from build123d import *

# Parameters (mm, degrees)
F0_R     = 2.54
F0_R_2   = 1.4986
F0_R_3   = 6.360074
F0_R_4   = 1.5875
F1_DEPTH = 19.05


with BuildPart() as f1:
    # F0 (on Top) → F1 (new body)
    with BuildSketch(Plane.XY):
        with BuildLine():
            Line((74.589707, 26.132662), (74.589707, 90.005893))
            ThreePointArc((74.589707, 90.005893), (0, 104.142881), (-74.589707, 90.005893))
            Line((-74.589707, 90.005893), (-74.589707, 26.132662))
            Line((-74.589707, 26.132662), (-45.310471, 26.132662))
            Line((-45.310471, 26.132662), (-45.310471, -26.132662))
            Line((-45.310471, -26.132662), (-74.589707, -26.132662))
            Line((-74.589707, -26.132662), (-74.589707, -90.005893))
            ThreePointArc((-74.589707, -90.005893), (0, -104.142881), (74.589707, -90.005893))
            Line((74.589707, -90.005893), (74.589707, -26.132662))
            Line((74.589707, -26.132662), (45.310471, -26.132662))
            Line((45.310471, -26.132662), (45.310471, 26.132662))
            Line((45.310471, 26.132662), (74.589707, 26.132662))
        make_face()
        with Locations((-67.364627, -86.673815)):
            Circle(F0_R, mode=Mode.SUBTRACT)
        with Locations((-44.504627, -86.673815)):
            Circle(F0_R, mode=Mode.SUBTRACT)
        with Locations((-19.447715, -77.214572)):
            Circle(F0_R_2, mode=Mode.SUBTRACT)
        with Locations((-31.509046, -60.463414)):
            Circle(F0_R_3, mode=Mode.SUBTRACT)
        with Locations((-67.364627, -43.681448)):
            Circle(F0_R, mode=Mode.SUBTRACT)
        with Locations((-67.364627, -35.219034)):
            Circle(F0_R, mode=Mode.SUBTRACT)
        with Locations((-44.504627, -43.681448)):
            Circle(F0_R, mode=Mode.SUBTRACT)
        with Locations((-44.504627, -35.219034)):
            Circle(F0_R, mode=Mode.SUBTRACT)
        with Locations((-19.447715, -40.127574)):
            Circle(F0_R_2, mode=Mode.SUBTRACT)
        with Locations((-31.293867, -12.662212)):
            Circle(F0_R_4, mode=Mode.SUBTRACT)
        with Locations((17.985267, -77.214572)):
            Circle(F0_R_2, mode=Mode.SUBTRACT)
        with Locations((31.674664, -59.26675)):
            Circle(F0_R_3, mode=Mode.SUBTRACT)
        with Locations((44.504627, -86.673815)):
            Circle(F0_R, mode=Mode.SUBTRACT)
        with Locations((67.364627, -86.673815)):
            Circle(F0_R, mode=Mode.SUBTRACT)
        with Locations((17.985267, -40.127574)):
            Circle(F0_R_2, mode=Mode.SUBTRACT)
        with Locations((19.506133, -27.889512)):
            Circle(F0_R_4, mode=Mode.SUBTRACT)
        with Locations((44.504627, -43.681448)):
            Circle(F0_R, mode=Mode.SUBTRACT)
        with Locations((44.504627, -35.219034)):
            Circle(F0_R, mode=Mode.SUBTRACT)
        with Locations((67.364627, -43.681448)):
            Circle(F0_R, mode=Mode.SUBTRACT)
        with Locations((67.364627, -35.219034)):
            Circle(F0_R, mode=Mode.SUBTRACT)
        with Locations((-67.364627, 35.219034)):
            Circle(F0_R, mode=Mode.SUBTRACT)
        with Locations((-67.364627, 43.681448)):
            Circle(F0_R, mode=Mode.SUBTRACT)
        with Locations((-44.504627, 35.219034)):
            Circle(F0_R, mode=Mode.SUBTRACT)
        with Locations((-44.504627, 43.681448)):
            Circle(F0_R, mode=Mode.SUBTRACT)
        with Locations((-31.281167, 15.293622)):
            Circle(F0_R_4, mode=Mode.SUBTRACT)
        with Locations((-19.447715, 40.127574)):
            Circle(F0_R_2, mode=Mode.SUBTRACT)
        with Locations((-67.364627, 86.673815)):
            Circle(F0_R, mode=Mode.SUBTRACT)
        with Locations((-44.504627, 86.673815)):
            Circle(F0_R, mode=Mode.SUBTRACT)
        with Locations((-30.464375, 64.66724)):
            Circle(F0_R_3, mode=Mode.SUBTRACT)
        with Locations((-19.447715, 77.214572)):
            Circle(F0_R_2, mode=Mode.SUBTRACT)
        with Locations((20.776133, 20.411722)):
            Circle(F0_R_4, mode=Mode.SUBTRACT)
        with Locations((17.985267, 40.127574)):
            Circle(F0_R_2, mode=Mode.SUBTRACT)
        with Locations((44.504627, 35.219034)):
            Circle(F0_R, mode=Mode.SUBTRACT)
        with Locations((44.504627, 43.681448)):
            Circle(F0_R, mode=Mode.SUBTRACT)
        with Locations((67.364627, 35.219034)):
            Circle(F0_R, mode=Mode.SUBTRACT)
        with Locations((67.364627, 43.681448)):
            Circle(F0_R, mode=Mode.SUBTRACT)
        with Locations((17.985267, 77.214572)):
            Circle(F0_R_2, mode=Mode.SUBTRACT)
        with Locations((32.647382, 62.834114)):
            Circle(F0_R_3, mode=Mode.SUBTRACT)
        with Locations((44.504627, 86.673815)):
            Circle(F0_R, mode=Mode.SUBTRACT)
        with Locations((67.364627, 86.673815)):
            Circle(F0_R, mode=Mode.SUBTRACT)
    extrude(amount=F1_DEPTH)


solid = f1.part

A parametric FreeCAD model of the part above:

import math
import FreeCAD as App
import Part
import Sketcher
Q = App.Units.Quantity

doc = App.newDocument("Part")
params = doc.addObject("Spreadsheet::Sheet", "Params")
for row, (alias, value) in enumerate([
    ("sketch1_diameter", "0.2 in"),
    ("sketch1_diameter2", "0.118 in"),
    ("sketch1_diameter3", "0.125 in"),
    ("pad1_length", "0.75 in"),
], start=1):
    params.set(f"A{row}", alias)
    params.set(f"B{row}", "=" + value)
    params.setAlias(f"B{row}", alias)

body = doc.addObject("PartDesign::Body", "Body")

# Sketch on XY plane
sketch1 = body.newObject("Sketcher::SketchObject", "Sketch")
sketch1.AttachmentSupport = (doc.getObject("XY_Plane"), [""])
sketch1.MapMode = "FlatFace"
sketch1.addGeometry(Part.LineSegment(App.Vector(74.6, 26.1, 0), App.Vector(74.6, 90, 0)), False)
sketch1.addGeometry(Part.ArcOfCircle(Part.Circle(App.Vector(0, -99.7, 0), App.Vector(0, 0, 1), 203.8), math.radians(69), math.radians(111)), False)
sketch1.addGeometry(Part.LineSegment(App.Vector(-74.6, 90, 0), App.Vector(-74.6, 26.1, 0)), False)
sketch1.addGeometry(Part.LineSegment(App.Vector(-74.6, 26.1, 0), App.Vector(-45.3, 26.1, 0)), False)
sketch1.addGeometry(Part.LineSegment(App.Vector(-45.3, 26.1, 0), App.Vector(-45.3, -26.1, 0)), False)
sketch1.addGeometry(Part.LineSegment(App.Vector(-45.3, -26.1, 0), App.Vector(-74.6, -26.1, 0)), False)
sketch1.addGeometry(Part.LineSegment(App.Vector(-74.6, -26.1, 0), App.Vector(-74.6, -90, 0)), False)
sketch1.addGeometry(Part.ArcOfCircle(Part.Circle(App.Vector(0, 99.7, 0), App.Vector(0, 0, 1), 203.8), math.radians(-111), math.radians(-69)), False)
sketch1.addGeometry(Part.LineSegment(App.Vector(74.6, -90, 0), App.Vector(74.6, -26.1, 0)), False)
sketch1.addGeometry(Part.LineSegment(App.Vector(74.6, -26.1, 0), App.Vector(45.3, -26.1, 0)), False)
sketch1.addGeometry(Part.LineSegment(App.Vector(45.3, -26.1, 0), App.Vector(45.3, 26.1, 0)), False)
sketch1.addGeometry(Part.LineSegment(App.Vector(45.3, 26.1, 0), App.Vector(74.6, 26.1, 0)), False)
sketch1.addGeometry(Part.Circle(App.Vector(-67.4, -86.7, 0), App.Vector(0, 0, 1), 2.5), False)
sketch1.addGeometry(Part.Circle(App.Vector(-44.5, -86.7, 0), App.Vector(0, 0, 1), 2.5), False)
sketch1.addGeometry(Part.Circle(App.Vector(-19.4, -77.2, 0), App.Vector(0, 0, 1), 1.5), False)
sketch1.addGeometry(Part.Circle(App.Vector(-31.5, -60.5, 0), App.Vector(0, 0, 1), 6.4), False)
sketch1.addGeometry(Part.Circle(App.Vector(-67.4, -43.7, 0), App.Vector(0, 0, 1), 2.5), False)
sketch1.addGeometry(Part.Circle(App.Vector(-67.4, -35.2, 0), App.Vector(0, 0, 1), 2.5), False)
sketch1.addGeometry(Part.Circle(App.Vector(-44.5, -43.7, 0), App.Vector(0, 0, 1), 2.5), False)
sketch1.addGeometry(Part.Circle(App.Vector(-44.5, -35.2, 0), App.Vector(0, 0, 1), 2.5), False)
sketch1.addGeometry(Part.Circle(App.Vector(-19.4, -40.1, 0), App.Vector(0, 0, 1), 1.5), False)
sketch1.addGeometry(Part.Circle(App.Vector(-31.3, -12.7, 0), App.Vector(0, 0, 1), 1.6), False)
sketch1.addGeometry(Part.Circle(App.Vector(18, -77.2, 0), App.Vector(0, 0, 1), 1.5), False)
sketch1.addGeometry(Part.Circle(App.Vector(31.7, -59.3, 0), App.Vector(0, 0, 1), 6.4), False)
sketch1.addGeometry(Part.Circle(App.Vector(44.5, -86.7, 0), App.Vector(0, 0, 1), 2.5), False)
sketch1.addGeometry(Part.Circle(App.Vector(67.4, -86.7, 0), App.Vector(0, 0, 1), 2.5), False)
sketch1.addGeometry(Part.Circle(App.Vector(18, -40.1, 0), App.Vector(0, 0, 1), 1.5), False)
sketch1.addGeometry(Part.Circle(App.Vector(19.5, -27.9, 0), App.Vector(0, 0, 1), 1.6), False)
sketch1.addGeometry(Part.Circle(App.Vector(44.5, -43.7, 0), App.Vector(0, 0, 1), 2.5), False)
sketch1.addGeometry(Part.Circle(App.Vector(44.5, -35.2, 0), App.Vector(0, 0, 1), 2.5), False)
sketch1.addGeometry(Part.Circle(App.Vector(67.4, -43.7, 0), App.Vector(0, 0, 1), 2.5), False)
sketch1.addGeometry(Part.Circle(App.Vector(67.4, -35.2, 0), App.Vector(0, 0, 1), 2.5), False)
sketch1.addGeometry(Part.Circle(App.Vector(-67.4, 35.2, 0), App.Vector(0, 0, 1), 2.5), False)
sketch1.addGeometry(Part.Circle(App.Vector(-67.4, 43.7, 0), App.Vector(0, 0, 1), 2.5), False)
sketch1.addGeometry(Part.Circle(App.Vector(-44.5, 35.2, 0), App.Vector(0, 0, 1), 2.5), False)
sketch1.addGeometry(Part.Circle(App.Vector(-44.5, 43.7, 0), App.Vector(0, 0, 1), 2.5), False)
sketch1.addGeometry(Part.Circle(App.Vector(-31.3, 15.3, 0), App.Vector(0, 0, 1), 1.6), False)
sketch1.addGeometry(Part.Circle(App.Vector(-19.4, 40.1, 0), App.Vector(0, 0, 1), 1.5), False)
sketch1.addGeometry(Part.Circle(App.Vector(-67.4, 86.7, 0), App.Vector(0, 0, 1), 2.5), False)
sketch1.addGeometry(Part.Circle(App.Vector(-44.5, 86.7, 0), App.Vector(0, 0, 1), 2.5), False)
sketch1.addGeometry(Part.Circle(App.Vector(-30.5, 64.7, 0), App.Vector(0, 0, 1), 6.4), False)
sketch1.addGeometry(Part.Circle(App.Vector(-19.4, 77.2, 0), App.Vector(0, 0, 1), 1.5), False)
sketch1.addGeometry(Part.Circle(App.Vector(20.8, 20.4, 0), App.Vector(0, 0, 1), 1.6), False)
sketch1.addGeometry(Part.Circle(App.Vector(18, 40.1, 0), App.Vector(0, 0, 1), 1.5), False)
sketch1.addGeometry(Part.Circle(App.Vector(44.5, 35.2, 0), App.Vector(0, 0, 1), 2.5), False)
sketch1.addGeometry(Part.Circle(App.Vector(44.5, 43.7, 0), App.Vector(0, 0, 1), 2.5), False)
sketch1.addGeometry(Part.Circle(App.Vector(67.4, 35.2, 0), App.Vector(0, 0, 1), 2.5), False)
sketch1.addGeometry(Part.Circle(App.Vector(67.4, 43.7, 0), App.Vector(0, 0, 1), 2.5), False)
sketch1.addGeometry(Part.Circle(App.Vector(32.6, 62.8, 0), App.Vector(0, 0, 1), 6.4), False)
sketch1.addGeometry(Part.Circle(App.Vector(18, 77.2, 0), App.Vector(0, 0, 1), 1.5), False)
sketch1.addGeometry(Part.Circle(App.Vector(44.5, 86.7, 0), App.Vector(0, 0, 1), 2.5), False)
sketch1.addGeometry(Part.Circle(App.Vector(67.4, 86.7, 0), App.Vector(0, 0, 1), 2.5), False)
sketch1.addConstraint(Sketcher.Constraint("Coincident", 0, 2, 1, 1))
sketch1.addConstraint(Sketcher.Constraint("Coincident", 1, 2, 2, 1))
sketch1.addConstraint(Sketcher.Constraint("Coincident", 2, 2, 3, 1))
sketch1.addConstraint(Sketcher.Constraint("Coincident", 3, 2, 4, 1))
sketch1.addConstraint(Sketcher.Constraint("Coincident", 4, 2, 5, 1))
sketch1.addConstraint(Sketcher.Constraint("Coincident", 5, 2, 6, 1))
sketch1.addConstraint(Sketcher.Constraint("Coincident", 6, 2, 7, 1))
sketch1.addConstraint(Sketcher.Constraint("Coincident", 7, 2, 8, 1))
sketch1.addConstraint(Sketcher.Constraint("Coincident", 8, 2, 9, 1))
sketch1.addConstraint(Sketcher.Constraint("Coincident", 9, 2, 10, 1))
sketch1.addConstraint(Sketcher.Constraint("Coincident", 10, 2, 11, 1))
sketch1.addConstraint(Sketcher.Constraint("Coincident", 11, 2, 0, 1))
sketch1.addConstraint(Sketcher.Constraint("Vertical", 0))
sketch1.addConstraint(Sketcher.Constraint("Vertical", 2))
sketch1.addConstraint(Sketcher.Constraint("Horizontal", 3))
sketch1.addConstraint(Sketcher.Constraint("Vertical", 4))
sketch1.addConstraint(Sketcher.Constraint("Horizontal", 5))
sketch1.addConstraint(Sketcher.Constraint("Vertical", 6))
sketch1.addConstraint(Sketcher.Constraint("Vertical", 8))
sketch1.addConstraint(Sketcher.Constraint("Horizontal", 9))
sketch1.addConstraint(Sketcher.Constraint("Vertical", 10))
sketch1.addConstraint(Sketcher.Constraint("Horizontal", 11))
sketch1.addConstraint(Sketcher.Constraint("Equal", 1, 7))
sketch1.addConstraint(Sketcher.Constraint("Equal", 12, 13))
sketch1.addConstraint(Sketcher.Constraint("Equal", 13, 16))
sketch1.addConstraint(Sketcher.Constraint("Equal", 16, 17))
sketch1.addConstraint(Sketcher.Constraint("Equal", 17, 18))
sketch1.addConstraint(Sketcher.Constraint("Equal", 18, 19))
sketch1.addConstraint(Sketcher.Constraint("Equal", 14, 20))
sketch1.addConstraint(Sketcher.Constraint("Equal", 20, 22))
sketch1.addConstraint(Sketcher.Constraint("Equal", 15, 23))
sketch1.addConstraint(Sketcher.Constraint("Equal", 19, 24))
sketch1.addConstraint(Sketcher.Constraint("Equal", 24, 25))
sketch1.addConstraint(Sketcher.Constraint("Equal", 22, 26))
sketch1.addConstraint(Sketcher.Constraint("Equal", 21, 27))
sketch1.addConstraint(Sketcher.Constraint("Equal", 25, 28))
sketch1.addConstraint(Sketcher.Constraint("Equal", 28, 29))
sketch1.addConstraint(Sketcher.Constraint("Equal", 29, 30))
sketch1.addConstraint(Sketcher.Constraint("Equal", 30, 31))
sketch1.addConstraint(Sketcher.Constraint("Equal", 31, 32))
sketch1.addConstraint(Sketcher.Constraint("Equal", 32, 33))
sketch1.addConstraint(Sketcher.Constraint("Equal", 33, 34))
sketch1.addConstraint(Sketcher.Constraint("Equal", 34, 35))
sketch1.addConstraint(Sketcher.Constraint("Equal", 27, 36))
sketch1.addConstraint(Sketcher.Constraint("Equal", 26, 37))
sketch1.addConstraint(Sketcher.Constraint("Equal", 35, 38))
sketch1.addConstraint(Sketcher.Constraint("Equal", 38, 39))
sketch1.addConstraint(Sketcher.Constraint("Equal", 23, 40))
sketch1.addConstraint(Sketcher.Constraint("Equal", 37, 41))
sketch1.addConstraint(Sketcher.Constraint("Equal", 36, 42))
sketch1.addConstraint(Sketcher.Constraint("Equal", 41, 43))
sketch1.addConstraint(Sketcher.Constraint("Equal", 39, 44))
sketch1.addConstraint(Sketcher.Constraint("Equal", 44, 45))
sketch1.addConstraint(Sketcher.Constraint("Equal", 45, 46))
sketch1.addConstraint(Sketcher.Constraint("Equal", 46, 47))
sketch1.addConstraint(Sketcher.Constraint("Equal", 40, 48))
sketch1.addConstraint(Sketcher.Constraint("Equal", 43, 49))
sketch1.addConstraint(Sketcher.Constraint("Equal", 47, 50))
sketch1.addConstraint(Sketcher.Constraint("Equal", 50, 51))
sketch1.addConstraint(Sketcher.Constraint("Symmetric", 1, 3, 7, 3, -1, 1))
sketch1.addConstraint(Sketcher.Constraint("Symmetric", 31, 3, 32, 3, -1, 1))
sketch1.addConstraint(Sketcher.Constraint("Symmetric", 30, 3, 33, 3, -1, 1))
sketch1.addConstraint(Sketcher.Constraint("Symmetric", 29, 3, 34, 3, -1, 1))
sketch1.addConstraint(Sketcher.Constraint("Symmetric", 28, 3, 35, 3, -1, 1))
sketch1.addConstraint(Sketcher.Constraint("Symmetric", 25, 3, 38, 3, -1, 1))
sketch1.addConstraint(Sketcher.Constraint("Symmetric", 24, 3, 39, 3, -1, 1))
sketch1.addConstraint(Sketcher.Constraint("Symmetric", 19, 3, 44, 3, -1, 1))
sketch1.addConstraint(Sketcher.Constraint("Symmetric", 18, 3, 45, 3, -1, 1))
sketch1.addConstraint(Sketcher.Constraint("Symmetric", 17, 3, 46, 3, -1, 1))
sketch1.addConstraint(Sketcher.Constraint("Symmetric", 16, 3, 47, 3, -1, 1))
sketch1.addConstraint(Sketcher.Constraint("Symmetric", 13, 3, 50, 3, -1, 1))
sketch1.addConstraint(Sketcher.Constraint("Symmetric", 12, 3, 51, 3, -1, 1))
sketch1.addConstraint(Sketcher.Constraint("Symmetric", 2, 2, 8, 2, -1, 1))
sketch1.addConstraint(Sketcher.Constraint("Symmetric", 4, 2, 10, 2, -1, 1))
sketch1.addConstraint(Sketcher.Constraint("Symmetric", 13, 3, 24, 3, -2))
sketch1.addConstraint(Sketcher.Constraint("Symmetric", 12, 3, 25, 3, -2))
sketch1.addConstraint(Sketcher.Constraint("Symmetric", 18, 3, 28, 3, -2))
sketch1.addConstraint(Sketcher.Constraint("Symmetric", 19, 3, 29, 3, -2))
sketch1.addConstraint(Sketcher.Constraint("Symmetric", 16, 3, 30, 3, -2))
sketch1.addConstraint(Sketcher.Constraint("Symmetric", 17, 3, 31, 3, -2))
sketch1.addConstraint(Sketcher.Constraint("Symmetric", 0, 2, 1, 2, -2))
sketch1.addConstraint(Sketcher.Constraint("Symmetric", 5, 2, 8, 2, -2))
sketch1.addConstraint(Sketcher.Constraint("Symmetric", 20, 3, 37, 3, -1))
sketch1.addConstraint(Sketcher.Constraint("Symmetric", 14, 3, 41, 3, -1))
sketch1.addConstraint(Sketcher.Constraint("Symmetric", 26, 3, 43, 3, -1))
sketch1.addConstraint(Sketcher.Constraint("Symmetric", 22, 3, 49, 3, -1))
sketch1.addConstraint(Sketcher.Constraint("Horizontal", 12, 3, 13, 3))
sketch1.addConstraint(Sketcher.Constraint("Horizontal", 16, 3, 18, 3))
sketch1.addConstraint(Sketcher.Constraint("Horizontal", 17, 3, 19, 3))
sketch1.addConstraint(Sketcher.Constraint("Horizontal", 14, 3, 22, 3))
sketch1.addConstraint(Sketcher.Constraint("Horizontal", 20, 3, 26, 3))
sketch1.addConstraint(Sketcher.Constraint("Vertical", 12, 3, 16, 3))
sketch1.addConstraint(Sketcher.Constraint("Vertical", 16, 3, 17, 3))
sketch1.addConstraint(Sketcher.Constraint("Vertical", 13, 3, 18, 3))
sketch1.addConstraint(Sketcher.Constraint("Vertical", 18, 3, 19, 3))
sketch1.addConstraint(Sketcher.Constraint("Vertical", 14, 3, 20, 3))
sketch1.addConstraint(Sketcher.Constraint("Vertical", 22, 3, 26, 3))
sketch1.addConstraint(Sketcher.Constraint("Diameter", 12, Q("0.2 in")))
sketch1.addConstraint(Sketcher.Constraint("Diameter", 14, Q("0.118 in")))
sketch1.addConstraint(Sketcher.Constraint("Diameter", 21, Q("0.125 in")))
sketch1.addConstraint(Sketcher.Constraint("DistanceX", 21, 3, 27, 3, Q("2 in")))
sketch1.addConstraint(Sketcher.Constraint("DistanceX", 12, 3, 13, 3, Q("0.9 in")))
sketch1.addConstraint(Sketcher.Constraint("DistanceX", 27, 3, 42, 3, Q("0.05 in")))
sketch1.addConstraint(Sketcher.Constraint("Diameter", 15, Q("12.720148 mm")))
sketch1.addConstraint(Sketcher.Constraint("Radius", 1, Q("203.843945 mm")))
sketch1.addConstraint(Sketcher.Constraint("DistanceY", 27, 3, 21, 3, Q("0.5995 in")))
sketch1.addConstraint(Sketcher.Constraint("DistanceX", 21, 3, 36, 3, Q("0.0005 in")))
sketch1.addConstraint(Sketcher.Constraint("DistanceY", 36, 3, 42, 3, Q("0.2015 in")))
sketch1.addConstraint(Sketcher.Constraint("DistanceY", 0, 1, 0, 2, Q("63.873231 mm")))
sketch1.addConstraint(Sketcher.Constraint("DistanceY", 13, 3, 15, 3, Q("26.210401 mm")))
sketch1.addConstraint(Sketcher.Constraint("DistanceY", 23, 3, 28, 3, Q("15.585302 mm")))
sketch1.addConstraint(Sketcher.Constraint("DistanceY", 48, 3, 50, 3, Q("23.839701 mm")))
sketch1.addConstraint(Sketcher.Constraint("DistanceX", 3, 1, 3, 2, Q("29.279236 mm")))
sketch1.addConstraint(Sketcher.Constraint("DistanceY", 4, 2, 4, 1, Q("52.265324 mm")))
sketch1.addConstraint(Sketcher.Constraint("DistanceY", 16, 3, -1, 1, Q("43.681448 mm")))
sketch1.addConstraint(Sketcher.Constraint("DistanceY", 27, 3, -1, 1, Q("27.889512 mm")))
sketch1.addConstraint(Sketcher.Constraint("DistanceY", -1, 1, 36, 3, Q("15.293622 mm")))
sketch1.addConstraint(Sketcher.Constraint("DistanceY", -1, 1, 40, 3, Q("64.66724 mm")))
sketch1.addConstraint(Sketcher.Constraint("DistanceX", 3, 2, -1, 1, Q("45.310471 mm")))
sketch1.addConstraint(Sketcher.Constraint("DistanceY", 1, 3, 12, 3, Q("13.027249 mm")))
sketch1.addConstraint(Sketcher.Constraint("DistanceX", 12, 3, 14, 3, Q("47.916912 mm")))
sketch1.addConstraint(Sketcher.Constraint("DistanceX", 15, 3, 14, 3, Q("12.061331 mm")))
sketch1.addConstraint(Sketcher.Constraint("DistanceY", 14, 3, 15, 3, Q("16.751158 mm")))
sketch1.addConstraint(Sketcher.Constraint("DistanceY", 15, 3, 17, 3, Q("25.24438 mm")))
sketch1.addConstraint(Sketcher.Constraint("DistanceY", 15, 3, 20, 3, Q("20.33584 mm")))
sketch1.addConstraint(Sketcher.Constraint("DistanceX", 19, 3, 21, 3, Q("13.21076 mm")))
sketch1.addConstraint(Sketcher.Constraint("DistanceX", 14, 3, 22, 3, Q("37.432982 mm")))
sketch1.addConstraint(Sketcher.Constraint("DistanceX", 14, 3, 23, 3, Q("51.122379 mm")))
sketch1.addConstraint(Sketcher.Constraint("DistanceX", 22, 3, 24, 3, Q("26.51936 mm")))
sketch1.addConstraint(Sketcher.Constraint("DistanceX", 35, 3, 40, 3, Q("14.040252 mm")))
sketch1.addConstraint(Sketcher.Constraint("DistanceX", 42, 3, 48, 3, Q("11.871249 mm")))
sketch1.setExpression("Constraints[97]", "Params.sketch1_diameter")
sketch1.setExpression("Constraints[98]", "Params.sketch1_diameter2")
sketch1.setExpression("Constraints[99]", "Params.sketch1_diameter3")
pad1 = body.newObject("PartDesign::Pad", "Pad")
pad1.Profile = sketch1
pad1.setExpression("Length", "Params.pad1_length")

doc.recompute()
